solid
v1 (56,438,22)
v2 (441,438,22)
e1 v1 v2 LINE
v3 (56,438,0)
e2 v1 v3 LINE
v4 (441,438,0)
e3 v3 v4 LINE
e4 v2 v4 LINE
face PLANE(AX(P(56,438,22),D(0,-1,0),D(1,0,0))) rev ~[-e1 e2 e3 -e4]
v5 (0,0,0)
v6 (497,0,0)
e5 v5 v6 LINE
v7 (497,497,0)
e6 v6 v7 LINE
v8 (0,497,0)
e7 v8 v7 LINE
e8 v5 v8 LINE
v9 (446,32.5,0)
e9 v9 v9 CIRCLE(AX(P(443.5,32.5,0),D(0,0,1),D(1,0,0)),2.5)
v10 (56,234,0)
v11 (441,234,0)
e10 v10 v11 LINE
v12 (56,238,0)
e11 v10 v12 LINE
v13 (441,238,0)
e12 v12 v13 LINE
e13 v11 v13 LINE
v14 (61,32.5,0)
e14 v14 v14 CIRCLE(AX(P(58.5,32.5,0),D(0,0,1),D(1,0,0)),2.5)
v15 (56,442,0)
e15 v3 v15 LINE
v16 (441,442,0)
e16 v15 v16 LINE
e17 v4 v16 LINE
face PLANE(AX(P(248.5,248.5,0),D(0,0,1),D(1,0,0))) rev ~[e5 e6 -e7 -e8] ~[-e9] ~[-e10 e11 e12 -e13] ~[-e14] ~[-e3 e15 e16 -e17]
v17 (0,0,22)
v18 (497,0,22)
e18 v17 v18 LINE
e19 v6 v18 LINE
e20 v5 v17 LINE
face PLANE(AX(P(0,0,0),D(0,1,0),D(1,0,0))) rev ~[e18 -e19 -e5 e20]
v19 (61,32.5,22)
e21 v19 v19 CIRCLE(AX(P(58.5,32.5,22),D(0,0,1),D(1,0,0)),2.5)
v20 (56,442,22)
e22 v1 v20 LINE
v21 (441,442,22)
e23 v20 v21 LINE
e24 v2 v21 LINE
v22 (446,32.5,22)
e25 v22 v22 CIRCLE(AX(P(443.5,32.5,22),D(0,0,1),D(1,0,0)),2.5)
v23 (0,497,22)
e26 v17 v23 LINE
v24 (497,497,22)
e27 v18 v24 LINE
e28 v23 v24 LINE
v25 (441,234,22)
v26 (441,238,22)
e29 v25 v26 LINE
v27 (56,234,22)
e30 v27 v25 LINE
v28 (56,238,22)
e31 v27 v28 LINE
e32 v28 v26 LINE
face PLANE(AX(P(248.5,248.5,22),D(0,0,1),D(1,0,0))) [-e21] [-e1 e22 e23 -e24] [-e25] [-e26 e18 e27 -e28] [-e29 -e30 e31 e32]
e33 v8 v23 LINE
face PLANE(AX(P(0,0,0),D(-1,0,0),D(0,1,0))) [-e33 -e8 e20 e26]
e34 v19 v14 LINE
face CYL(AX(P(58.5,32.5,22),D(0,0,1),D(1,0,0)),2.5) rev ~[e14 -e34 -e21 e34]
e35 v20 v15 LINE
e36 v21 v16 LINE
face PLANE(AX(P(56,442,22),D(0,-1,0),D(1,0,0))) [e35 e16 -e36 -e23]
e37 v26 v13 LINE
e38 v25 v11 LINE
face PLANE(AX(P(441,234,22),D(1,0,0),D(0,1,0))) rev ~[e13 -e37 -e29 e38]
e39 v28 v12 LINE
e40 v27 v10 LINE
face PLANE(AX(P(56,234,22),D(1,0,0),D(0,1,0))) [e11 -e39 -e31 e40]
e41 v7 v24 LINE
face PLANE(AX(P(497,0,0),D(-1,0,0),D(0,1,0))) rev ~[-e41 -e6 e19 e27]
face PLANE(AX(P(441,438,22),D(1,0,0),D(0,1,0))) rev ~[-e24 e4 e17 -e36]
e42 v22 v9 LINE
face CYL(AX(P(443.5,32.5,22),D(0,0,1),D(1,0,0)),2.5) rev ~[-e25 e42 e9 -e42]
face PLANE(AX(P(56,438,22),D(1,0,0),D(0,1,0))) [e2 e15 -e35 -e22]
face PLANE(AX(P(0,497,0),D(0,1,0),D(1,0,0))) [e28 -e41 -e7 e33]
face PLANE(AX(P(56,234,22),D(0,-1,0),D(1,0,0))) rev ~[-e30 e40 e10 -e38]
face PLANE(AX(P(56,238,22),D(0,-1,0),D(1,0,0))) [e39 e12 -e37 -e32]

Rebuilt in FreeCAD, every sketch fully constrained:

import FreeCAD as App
import Part
import Sketcher


def add_polygon(sketch, points):
    """Adds a closed chain of lines whose ends are joined by coincident constraints."""
    first, n = sketch.GeometryCount, len(points)
    for a, b in zip(points, points[1:] + points[:1]):
        sketch.addGeometry(Part.LineSegment(App.Vector(*a, 0), App.Vector(*b, 0)), False)
    for i in range(n):
        sketch.addConstraint(Sketcher.Constraint("Coincident", first + i, 2, first + (i + 1) % n, 1))

doc = App.newDocument("Part")
body = doc.addObject("PartDesign::Body", "Body")

# Sketch on XY plane
sketch1 = body.newObject("Sketcher::SketchObject", "Sketch")
sketch1.AttachmentSupport = (doc.getObject("XY_Plane"), [""])
sketch1.MapMode = "FlatFace"
add_polygon(sketch1, [(0, 497), (0, 0), (497, 0), (497, 497)])  # lines 0-3
sketch1.addConstraint(Sketcher.Constraint("Vertical", 0))
sketch1.addConstraint(Sketcher.Constraint("Horizontal", 1))
sketch1.addConstraint(Sketcher.Constraint("Vertical", 2))
sketch1.addConstraint(Sketcher.Constraint("Horizontal", 3))
sketch1.addConstraint(Sketcher.Constraint("Coincident", 0, 2, -1, 1))
sketch1.addConstraint(Sketcher.Constraint("Equal", 3, 0))
sketch1.addConstraint(Sketcher.Constraint("DistanceX", 1, 1, 1, 2, 497.0))
pad1 = body.newObject("PartDesign::Pad", "Pad")
pad1.Profile = sketch1
pad1.Length = 22

# Sketch on XY plane
sketch2 = body.newObject("Sketcher::SketchObject", "Sketch001")
sketch2.AttachmentSupport = (doc.getObject("XY_Plane"), [""])
sketch2.MapMode = "FlatFace"
sketch2.AttachmentOffset = App.Placement(App.Vector(0, 0, 22), App.Rotation())
add_polygon(sketch2, [(56, 442), (56, 438), (441, 438), (441, 442)])  # lines 0-3
sketch2.addGeometry(Part.Circle(App.Vector(58.5, 32.5, 0), App.Vector(0, 0, 1), 2.5), False)  # 4
sketch2.addGeometry(Part.Circle(App.Vector(443.5, 32.5, 0), App.Vector(0, 0, 1), 2.5), False)  # 5
add_polygon(sketch2, [(56, 238), (56, 234), (441, 234), (441, 238)])  # lines 6-9
sketch2.addConstraint(Sketcher.Constraint("Vertical", 0))
sketch2.addConstraint(Sketcher.Constraint("Horizontal", 1))
sketch2.addConstraint(Sketcher.Constraint("Vertical", 2))
sketch2.addConstraint(Sketcher.Constraint("Horizontal", 3))
sketch2.addConstraint(Sketcher.Constraint("Vertical", 6))
sketch2.addConstraint(Sketcher.Constraint("Horizontal", 7))
sketch2.addConstraint(Sketcher.Constraint("Vertical", 8))
sketch2.addConstraint(Sketcher.Constraint("Horizontal", 9))
sketch2.addConstraint(Sketcher.Constraint("Equal", 4, 5))
sketch2.addConstraint(Sketcher.Constraint("Horizontal", 4, 3, 5, 3))
sketch2.addConstraint(Sketcher.Constraint("Vertical", 3, 2, 6, 2))
sketch2.addConstraint(Sketcher.Constraint("Vertical", 2, 2, 7, 2))
sketch2.addConstraint(Sketcher.Constraint("Equal", 2, 6))
sketch2.addConstraint(Sketcher.Constraint("Diameter", 4, 5.0))
sketch2.addConstraint(Sketcher.Constraint("DistanceX", 1, 1, 1, 2, 385.0))
sketch2.addConstraint(Sketcher.Constraint("DistanceY", 0, 2, 0, 1, 4.0))
sketch2.addConstraint(Sketcher.Constraint("DistanceX", -1, 1, 0, 2, 56.0))
sketch2.addConstraint(Sketcher.Constraint("DistanceY", -1, 1, 0, 2, 438.0))
sketch2.addConstraint(Sketcher.Constraint("DistanceY", -1, 1, 6, 2, 234.0))
sketch2.addConstraint(Sketcher.Constraint("DistanceX", 4, 3, 5, 3, 385.0))
sketch2.addConstraint(Sketcher.Constraint("DistanceX", -1, 1, 4, 3, 58.5))
sketch2.addConstraint(Sketcher.Constraint("DistanceY", -1, 1, 4, 3, 32.5))
pocket1 = body.newObject("PartDesign::Pocket", "Pocket")
pocket1.Profile = sketch2
pocket1.Type = "ThroughAll"

doc.recompute()
